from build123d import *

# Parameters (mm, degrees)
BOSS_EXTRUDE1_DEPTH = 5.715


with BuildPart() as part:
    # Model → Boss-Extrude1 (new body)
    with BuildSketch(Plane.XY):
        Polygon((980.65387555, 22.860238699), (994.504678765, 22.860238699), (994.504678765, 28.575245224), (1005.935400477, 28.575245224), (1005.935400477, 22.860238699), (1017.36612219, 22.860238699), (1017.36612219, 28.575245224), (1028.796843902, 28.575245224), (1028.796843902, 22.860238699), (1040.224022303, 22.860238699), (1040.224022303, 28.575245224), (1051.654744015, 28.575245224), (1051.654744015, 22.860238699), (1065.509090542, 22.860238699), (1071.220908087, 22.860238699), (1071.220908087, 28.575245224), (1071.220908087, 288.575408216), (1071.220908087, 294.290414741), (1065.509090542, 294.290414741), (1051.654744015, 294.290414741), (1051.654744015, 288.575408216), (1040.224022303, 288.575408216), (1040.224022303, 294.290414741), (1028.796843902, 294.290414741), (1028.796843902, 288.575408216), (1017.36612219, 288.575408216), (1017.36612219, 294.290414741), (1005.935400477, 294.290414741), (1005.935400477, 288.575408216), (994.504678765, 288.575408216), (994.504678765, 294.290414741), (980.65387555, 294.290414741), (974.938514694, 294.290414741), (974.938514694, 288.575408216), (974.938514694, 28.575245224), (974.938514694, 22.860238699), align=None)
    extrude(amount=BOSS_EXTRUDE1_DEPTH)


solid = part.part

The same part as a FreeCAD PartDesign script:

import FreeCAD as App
import Part
import Sketcher
Q = App.Units.Quantity


def add_polygon(sketch, points):
    """Adds a closed chain of lines whose ends are joined by coincident constraints."""
    first, n = sketch.GeometryCount, len(points)
    for a, b in zip(points, points[1:] + points[:1]):
        sketch.addGeometry(Part.LineSegment(App.Vector(*a, 0), App.Vector(*b, 0)), False)
    for i in range(n):
        sketch.addConstraint(Sketcher.Constraint("Coincident", first + i, 2, first + (i + 1) % n, 1))

doc = App.newDocument("Part")
body = doc.addObject("PartDesign::Body", "Body")

sketch1 = body.newObject("Sketcher::SketchObject", "Sketch")
sketch1.AttachmentSupport = (doc.getObject("XY_Plane"), [""])
sketch1.MapMode = "FlatFace"
add_polygon(sketch1, [(995, 23), (995, 29), (1006, 29), (1006, 23), (1017, 23), (1017, 29), (1029, 29), (1029, 23), (1040, 23), (1040, 29), (1052, 29), (1052, 23), (1071, 23), (1071, 294), (1052, 294), (1052, 289), (1040, 289), (1040, 294), (1029, 294), (1029, 289), (1017, 289), (1017, 294), (1006, 294), (1006, 289), (995, 289), (995, 294), (975, 294), (975, 23)])
sketch1.addConstraint([
    Sketcher.Constraint("Vertical", 0),
    Sketcher.Constraint("Horizontal", 1),
    Sketcher.Constraint("Vertical", 2),
    Sketcher.Constraint("Horizontal", 3),
    Sketcher.Constraint("Vertical", 4),
    Sketcher.Constraint("Horizontal", 5),
    Sketcher.Constraint("Vertical", 6),
    Sketcher.Constraint("Horizontal", 7),
    Sketcher.Constraint("Vertical", 8),
    Sketcher.Constraint("Horizontal", 9),
    Sketcher.Constraint("Vertical", 10),
    Sketcher.Constraint("Horizontal", 11),
    Sketcher.Constraint("Vertical", 12),
    Sketcher.Constraint("Horizontal", 13),
    Sketcher.Constraint("Vertical", 14),
    Sketcher.Constraint("Horizontal", 15),
    Sketcher.Constraint("Vertical", 16),
    Sketcher.Constraint("Horizontal", 17),
    Sketcher.Constraint("Vertical", 18),
    Sketcher.Constraint("Horizontal", 19),
    Sketcher.Constraint("Vertical", 20),
    Sketcher.Constraint("Horizontal", 21),
    Sketcher.Constraint("Vertical", 22),
    Sketcher.Constraint("Horizontal", 23),
    Sketcher.Constraint("Vertical", 24),
    Sketcher.Constraint("Horizontal", 25),
    Sketcher.Constraint("Vertical", 26),
    Sketcher.Constraint("Horizontal", 27),
    Sketcher.Constraint("Horizontal", 1, 2, 4, 2),
    Sketcher.Constraint("Horizontal", 3, 2, 6, 2),
    Sketcher.Constraint("Horizontal", 5, 2, 8, 2),
    Sketcher.Constraint("Horizontal", 7, 2, 10, 2),
    Sketcher.Constraint("Horizontal", 13, 2, 16, 2),
    Sketcher.Constraint("Horizontal", 15, 2, 18, 2),
    Sketcher.Constraint("Horizontal", 17, 2, 20, 2),
    Sketcher.Constraint("Horizontal", 19, 2, 22, 2),
    Sketcher.Constraint("Horizontal", 21, 2, 24, 2),
    Sketcher.Constraint("Horizontal", 11, 2, 26, 2),
    Sketcher.Constraint("Vertical", 10, 2, 13, 2),
    Sketcher.Constraint("Vertical", 8, 2, 15, 2),
    Sketcher.Constraint("Vertical", 6, 2, 17, 2),
    Sketcher.Constraint("Vertical", 4, 2, 19, 2),
    Sketcher.Constraint("Vertical", 2, 2, 21, 2),
    Sketcher.Constraint("Vertical", 0, 2, 23, 2),
    Sketcher.Constraint("Equal", 1, 3),
    Sketcher.Constraint("Equal", 3, 5),
    Sketcher.Constraint("Equal", 5, 9),
    Sketcher.Constraint("Equal", 13, 25),
    Sketcher.Constraint("Equal", 10, 14),
    Sketcher.Constraint("DistanceX", 1, 1, 1, 2, 11.430722),
    Sketcher.Constraint("DistanceX", 7, 1, 7, 2, 11.427178),
    Sketcher.Constraint("DistanceX", -1, 1, 1, 2, 1005.9354),
    Sketcher.Constraint("DistanceX", 11, 1, 11, 2, 19.566164),
    Sketcher.Constraint("DistanceY", 0, 1, 0, 2, 5.715007),
    Sketcher.Constraint("DistanceY", 12, 1, 12, 2, 271.430176),
    Sketcher.Constraint("DistanceY", -1, 1, 2, 2, 22.860239),
])
pad1 = body.newObject("PartDesign::Pad", "Pad")
pad1.Profile = sketch1
pad1.Length = Q("0.225 in")

doc.recompute()
